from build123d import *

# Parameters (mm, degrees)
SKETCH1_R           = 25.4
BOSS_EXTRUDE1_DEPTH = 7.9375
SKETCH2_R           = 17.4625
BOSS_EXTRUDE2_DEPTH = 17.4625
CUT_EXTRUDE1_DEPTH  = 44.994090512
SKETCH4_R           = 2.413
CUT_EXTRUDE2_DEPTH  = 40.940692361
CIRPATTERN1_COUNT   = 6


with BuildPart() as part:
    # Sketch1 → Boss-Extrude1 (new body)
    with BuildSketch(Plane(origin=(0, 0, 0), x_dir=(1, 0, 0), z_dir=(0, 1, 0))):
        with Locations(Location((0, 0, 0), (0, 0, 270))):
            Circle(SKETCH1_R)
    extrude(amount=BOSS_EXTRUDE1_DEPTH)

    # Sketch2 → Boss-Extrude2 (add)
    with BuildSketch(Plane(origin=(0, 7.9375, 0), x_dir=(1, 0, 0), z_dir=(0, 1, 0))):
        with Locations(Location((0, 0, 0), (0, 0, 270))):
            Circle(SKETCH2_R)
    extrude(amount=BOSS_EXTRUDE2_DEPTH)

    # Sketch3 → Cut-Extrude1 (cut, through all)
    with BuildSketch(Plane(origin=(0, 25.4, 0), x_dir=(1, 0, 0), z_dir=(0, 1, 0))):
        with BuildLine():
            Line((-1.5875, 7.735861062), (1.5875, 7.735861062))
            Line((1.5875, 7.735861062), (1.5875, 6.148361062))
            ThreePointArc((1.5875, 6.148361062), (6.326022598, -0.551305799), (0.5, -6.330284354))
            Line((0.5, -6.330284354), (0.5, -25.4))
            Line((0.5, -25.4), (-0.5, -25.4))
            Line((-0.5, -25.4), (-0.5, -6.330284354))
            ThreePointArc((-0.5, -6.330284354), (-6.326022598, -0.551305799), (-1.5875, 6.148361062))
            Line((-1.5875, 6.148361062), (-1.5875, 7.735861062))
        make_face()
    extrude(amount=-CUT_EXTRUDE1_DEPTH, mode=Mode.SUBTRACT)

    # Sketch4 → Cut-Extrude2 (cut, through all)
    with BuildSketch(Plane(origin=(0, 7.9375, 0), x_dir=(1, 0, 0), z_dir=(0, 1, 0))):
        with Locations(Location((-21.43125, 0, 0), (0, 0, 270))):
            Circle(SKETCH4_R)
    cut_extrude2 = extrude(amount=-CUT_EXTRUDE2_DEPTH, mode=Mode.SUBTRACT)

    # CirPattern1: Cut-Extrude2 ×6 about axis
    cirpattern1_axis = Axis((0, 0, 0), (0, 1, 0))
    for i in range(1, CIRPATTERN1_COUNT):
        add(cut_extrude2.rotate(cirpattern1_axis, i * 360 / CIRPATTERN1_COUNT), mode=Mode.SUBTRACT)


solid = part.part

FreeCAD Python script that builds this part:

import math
import FreeCAD as App
import Part
import Sketcher

V = App.Vector
Q = App.Units.Quantity

doc = App.newDocument("Part")
body = doc.addObject("PartDesign::Body", "Body")

# Sketch on XZ plane
sketch1 = doc.addObject("Sketcher::SketchObject", "Sketch")
body.addObject(sketch1)
sketch1.AttachmentSupport = (doc.XZ_Plane, [""])
sketch1.MapMode = "FlatFace"
sketch1.addGeometry(Part.Circle(V(0, 0, 0), V(0, 0, 1), 25), False)
sketch1.addConstraint([
    Sketcher.Constraint("Coincident", 0, 3, -1, 1),
    Sketcher.Constraint("Diameter", 0, Q("2 in")),
])
pad1 = doc.addObject("PartDesign::Pad", "Pad")
body.addObject(pad1)
pad1.Profile = sketch1
pad1.Length = Q("0.3125 in")
pad1.Reversed = True

# Sketch on XZ plane
sketch2 = doc.addObject("Sketcher::SketchObject", "Sketch001")
body.addObject(sketch2)
sketch2.AttachmentSupport = (doc.XZ_Plane, [""])
sketch2.MapMode = "FlatFace"
sketch2.AttachmentOffset = App.Placement(V(0, 0, -0.3125 * 25.4), App.Rotation())
sketch2.addGeometry(Part.Circle(V(0, 0, 0), V(0, 0, 1), 17), False)
sketch2.addConstraint([
    Sketcher.Constraint("Coincident", 0, 3, -1, 1),
    Sketcher.Constraint("Diameter", 0, Q("1.375 in")),
])
pad2 = doc.addObject("PartDesign::Pad", "Pad001")
body.addObject(pad2)
pad2.Profile = sketch2
pad2.Length = Q("0.6875 in")
pad2.Reversed = True

# Sketch on XZ plane
sketch3 = doc.addObject("Sketcher::SketchObject", "Sketch002")
body.addObject(sketch3)
sketch3.AttachmentSupport = (doc.XZ_Plane, [""])
sketch3.MapMode = "FlatFace"
sketch3.AttachmentOffset = App.Placement(V(0, 0, -1 * 25.4), App.Rotation())
sketch3.addGeometry([
    Part.LineSegment(V(1.6, -7.7, 0), V(-1.6, -7.7, 0)),  # 0
    Part.LineSegment(V(-1.6, -7.7, 0), V(-1.6, -6.1, 0)),  # 1
    Part.ArcOfCircle(Part.Circle(V(0, 0, 0), V(0, 0, 1), 6.3), math.radians(95), math.radians(256)),  # 2
    Part.LineSegment(V(-0.5, 6.3, 0), V(-0.5, 25.4, 0)),  # 3
    Part.LineSegment(V(-0.5, 25.4, 0), V(0.5, 25.4, 0)),  # 4
    Part.LineSegment(V(0.5, 25.4, 0), V(0.5, 6.3, 0)),  # 5
    Part.ArcOfCircle(Part.Circle(V(0, 0, 0), V(0, 0, 1), 6.3), math.radians(-76), math.radians(85)),  # 6
    Part.LineSegment(V(1.6, -6.1, 0), V(1.6, -7.7, 0)),  # 7
], False)
sketch3.addConstraint([
    Sketcher.Constraint("Coincident", 0, 2, 1, 1),
    Sketcher.Constraint("Coincident", 1, 2, 2, 2),
    Sketcher.Constraint("Coincident", 2, 1, 3, 1),
    Sketcher.Constraint("Coincident", 3, 2, 4, 1),
    Sketcher.Constraint("Coincident", 4, 2, 5, 1),
    Sketcher.Constraint("Coincident", 5, 2, 6, 2),
    Sketcher.Constraint("Coincident", 6, 1, 7, 1),
    Sketcher.Constraint("Coincident", 7, 2, 0, 1),
    Sketcher.Constraint("Horizontal", 0),
    Sketcher.Constraint("Vertical", 1),
    Sketcher.Constraint("Vertical", 3),
    Sketcher.Constraint("Horizontal", 4),
    Sketcher.Constraint("Vertical", 5),
    Sketcher.Constraint("Vertical", 7),
    Sketcher.Constraint("Coincident", 2, 3, -1, 1),
    Sketcher.Constraint("Coincident", 6, 3, -1, 1),
    Sketcher.Constraint("Equal", 2, 6),
    Sketcher.Constraint("Horizontal", 2, 1, 5, 2),
    Sketcher.Constraint("Horizontal", 1, 2, 6, 1),
    Sketcher.Constraint("Radius", 2, Q("0.25 in")),
    Sketcher.Constraint("DistanceY", -1, 1, 3, 2, Q("1 in")),
    Sketcher.Constraint("DistanceX", 0, 2, 0, 1, Q("0.125 in")),
    Sketcher.Constraint("DistanceY", 1, 1, 1, 2, Q("0.0625 in")),
    Sketcher.Constraint("DistanceX", 4, 1, 4, 2, Q("1 mm")),
])
pocket1 = doc.addObject("PartDesign::Pocket", "Pocket")
body.addObject(pocket1)
pocket1.Profile = sketch3
pocket1.Type = "ThroughAll"
pocket1.Reversed = True

# Sketch on XZ plane
sketch4 = doc.addObject("Sketcher::SketchObject", "Sketch003")
body.addObject(sketch4)
sketch4.AttachmentSupport = (doc.XZ_Plane, [""])
sketch4.MapMode = "FlatFace"
sketch4.AttachmentOffset = App.Placement(V(0, 0, -0.3125 * 25.4), App.Rotation())
sketch4.addGeometry(Part.Circle(V(-21.4, 0, 0), V(0, 0, 1), 2.4), False)
sketch4.addConstraint([
    Sketcher.Constraint("PointOnObject", 0, 3, -1),
    Sketcher.Constraint("Diameter", 0, Q("0.19 in")),
    Sketcher.Constraint("DistanceX", 0, 3, -1, 1, Q("0.84375 in")),
])
pocket2 = doc.addObject("PartDesign::Pocket", "Pocket001")
body.addObject(pocket2)
pocket2.Profile = sketch4
pocket2.Type = "ThroughAll"
pocket2.Reversed = True
doc.recompute()

polarpattern = doc.addObject("PartDesign::PolarPattern", "PolarPattern")
body.addObject(polarpattern)
polarpattern.Originals = [pocket2]
polarpattern.Axis = (doc.Y_Axis, [""])
polarpattern.Angle = 360
polarpattern.Occurrences = 6
body.Tip = polarpattern

doc.recompute()
